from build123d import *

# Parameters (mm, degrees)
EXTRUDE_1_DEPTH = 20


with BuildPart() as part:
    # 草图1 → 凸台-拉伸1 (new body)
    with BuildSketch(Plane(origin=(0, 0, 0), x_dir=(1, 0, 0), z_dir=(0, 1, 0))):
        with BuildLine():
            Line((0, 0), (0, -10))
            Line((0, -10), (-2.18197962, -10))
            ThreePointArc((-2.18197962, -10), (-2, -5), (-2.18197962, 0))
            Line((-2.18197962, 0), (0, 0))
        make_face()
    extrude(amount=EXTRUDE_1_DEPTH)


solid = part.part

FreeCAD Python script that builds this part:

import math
import FreeCAD as App
import Part
import Sketcher

V = App.Vector
Q = App.Units.Quantity

doc = App.newDocument("Part")
body = doc.addObject("PartDesign::Body", "Body")

# Sketch on XZ plane
sketch1 = body.newObject("Sketcher::SketchObject", "Sketch")
sketch1.AttachmentSupport = (doc.getObject("XZ_Plane"), [""])
sketch1.MapMode = "FlatFace"
sketch1.addGeometry([
    Part.LineSegment(V(0, 10, 0), V(0, 0, 0)),
    Part.LineSegment(V(0, 0, 0), V(-2.2, 0, 0)),
    Part.ArcOfCircle(Part.Circle(V(-70.8, 5, 0), V(0, 0, 1), 68.8), math.radians(-4.17), math.radians(4.17)),
    Part.LineSegment(V(-2.2, 10, 0), V(0, 10, 0)),
], False)
sketch1.addConstraint([
    Sketcher.Constraint("Coincident", 0, 2, 1, 1),
    Sketcher.Constraint("Coincident", 1, 2, 2, 1),
    Sketcher.Constraint("Coincident", 2, 2, 3, 1),
    Sketcher.Constraint("Coincident", 3, 2, 0, 1),
    Sketcher.Constraint("Vertical", 0),
    Sketcher.Constraint("Horizontal", 1),
    Sketcher.Constraint("Horizontal", 3),
    Sketcher.Constraint("Coincident", 0, 2, -1, 1),
    Sketcher.Constraint("Vertical", 1, 2, 2, 2),
    Sketcher.Constraint("DistanceY", 0, 2, 0, 1, Q("10 mm")),
    Sketcher.Constraint("Radius", 2, Q("68.78 mm")),
    Sketcher.Constraint("DistanceX", 2, 3, -1, 1, Q("70.78 mm")),
])
pad1 = body.newObject("PartDesign::Pad", "Pad")
pad1.Profile = sketch1
pad1.Length = 20
pad1.Reversed = True

doc.recompute()
